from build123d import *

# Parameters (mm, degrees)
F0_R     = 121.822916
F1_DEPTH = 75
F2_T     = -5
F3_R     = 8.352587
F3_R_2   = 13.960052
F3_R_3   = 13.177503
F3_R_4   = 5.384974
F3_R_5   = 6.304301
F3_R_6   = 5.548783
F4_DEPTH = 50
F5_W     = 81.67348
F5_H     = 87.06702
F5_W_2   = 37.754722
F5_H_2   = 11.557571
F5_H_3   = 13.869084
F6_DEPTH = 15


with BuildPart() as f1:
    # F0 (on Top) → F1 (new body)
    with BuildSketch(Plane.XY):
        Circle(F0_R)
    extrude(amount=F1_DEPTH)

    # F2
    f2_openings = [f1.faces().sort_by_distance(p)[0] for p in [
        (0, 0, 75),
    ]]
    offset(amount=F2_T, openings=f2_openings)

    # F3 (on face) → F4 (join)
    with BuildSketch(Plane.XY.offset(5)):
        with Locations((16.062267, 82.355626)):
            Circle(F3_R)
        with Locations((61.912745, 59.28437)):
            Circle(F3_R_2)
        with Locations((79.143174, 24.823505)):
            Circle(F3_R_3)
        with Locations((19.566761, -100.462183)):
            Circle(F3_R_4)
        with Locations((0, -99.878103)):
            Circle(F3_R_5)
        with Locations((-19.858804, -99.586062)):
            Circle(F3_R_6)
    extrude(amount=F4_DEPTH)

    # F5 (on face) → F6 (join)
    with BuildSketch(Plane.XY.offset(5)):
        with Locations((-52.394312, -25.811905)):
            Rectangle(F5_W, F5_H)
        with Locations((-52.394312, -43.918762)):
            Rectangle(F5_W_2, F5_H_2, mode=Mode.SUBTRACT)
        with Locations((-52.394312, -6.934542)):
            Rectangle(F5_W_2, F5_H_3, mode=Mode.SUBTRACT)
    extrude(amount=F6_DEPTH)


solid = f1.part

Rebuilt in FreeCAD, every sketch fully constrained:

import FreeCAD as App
import Part
import Sketcher
from FreeCAD import Vector


def faces_at(feature, points):
    """Names of the faces that lie closest to the given points."""
    faces = feature.Shape.Faces
    near = lambda p: min(range(len(faces)), key=lambda i: faces[i].distToShape(Part.Vertex(*p))[0])
    return sorted({f"Face{near(p) + 1}" for p in points})

doc = App.newDocument("Part")
body = doc.addObject("PartDesign::Body", "Body")

# Sketch on XY plane
sketch1 = body.newObject("Sketcher::SketchObject", "Sketch")
sketch1.AttachmentSupport = (doc.getObject("XY_Plane"), [""])
sketch1.MapMode = "FlatFace"
sketch1.addGeometry(Part.Circle(Vector(0, 0, 0), Vector(0, 0, 1), 121.822916), False)
sketch1.addConstraint([
    Sketcher.Constraint("Coincident", 0, 3, -1, 1),
    Sketcher.Constraint("Diameter", 0, 243.645832),
])
pad1 = body.newObject("PartDesign::Pad", "Pad")
pad1.Profile = sketch1
pad1.Length = 75
doc.recompute()

thickness = body.newObject("PartDesign::Thickness", "Thickness")
thickness.Base = (pad1, faces_at(pad1, [(0, 0, 75)]))
thickness.Value = 5
thickness.Reversed = True
thickness.Join = "Arc"

# Sketch on XY plane
sketch2 = body.newObject("Sketcher::SketchObject", "Sketch001")
sketch2.AttachmentSupport = (doc.getObject("XY_Plane"), [""])
sketch2.MapMode = "FlatFace"
sketch2.AttachmentOffset = App.Placement(Vector(0, 0, 5), App.Rotation())
sketch2.addGeometry([
    Part.Circle(Vector(16.062267, 82.355626, 0), Vector(0, 0, 1), 8.352587),  # 0
    Part.Circle(Vector(61.912745, 59.28437, 0), Vector(0, 0, 1), 13.960052),  # 1
    Part.Circle(Vector(79.143174, 24.823505, 0), Vector(0, 0, 1), 13.177503),  # 2
    Part.Circle(Vector(19.566761, -100.462183, 0), Vector(0, 0, 1), 5.384974),  # 3
    Part.Circle(Vector(0, -99.878103, 0), Vector(0, 0, 1), 6.304301),  # 4
    Part.Circle(Vector(-19.858804, -99.586062, 0), Vector(0, 0, 1), 5.548783),  # 5
], False)
sketch2.addConstraint([
    Sketcher.Constraint("PointOnObject", 4, 3, -2),
    Sketcher.Constraint("Diameter", 0, 16.705174),
    Sketcher.Constraint("Diameter", 1, 27.920104),
    Sketcher.Constraint("Diameter", 2, 26.355006),
    Sketcher.Constraint("Diameter", 3, 10.769948),
    Sketcher.Constraint("Diameter", 4, 12.608602),
    Sketcher.Constraint("Diameter", 5, 11.097566),
    Sketcher.Constraint("DistanceY", -1, 1, 1, 3, 59.28437),
    Sketcher.Constraint("DistanceX", -1, 1, 3, 3, 19.566761),
    Sketcher.Constraint("DistanceY", 5, 3, -1, 1, 99.586062),
    Sketcher.Constraint("DistanceX", 0, 3, 1, 3, 45.850478),
    Sketcher.Constraint("DistanceX", 1, 3, 2, 3, 17.230429),
    Sketcher.Constraint("DistanceY", 2, 3, 0, 3, 57.532121),
    Sketcher.Constraint("DistanceY", 3, 3, 0, 3, 182.817809),
    Sketcher.Constraint("DistanceY", 3, 3, 4, 3, 0.58408),
    Sketcher.Constraint("DistanceY", 4, 3, 5, 3, 0.292041),
    Sketcher.Constraint("DistanceX", 5, 3, 2, 3, 99.001978),
    Sketcher.Constraint("DistanceX", -1, 1, 0, 3, 16.062267),
])
pad2 = body.newObject("PartDesign::Pad", "Pad001")
pad2.Profile = sketch2
pad2.Length = 50

# Sketch on XY plane
sketch3 = body.newObject("Sketcher::SketchObject", "Sketch002")
sketch3.AttachmentSupport = (doc.getObject("XY_Plane"), [""])
sketch3.MapMode = "FlatFace"
sketch3.AttachmentOffset = App.Placement(Vector(0, 0, 5), App.Rotation())
sketch3.addGeometry([
    Part.LineSegment(Vector(-93.231052, 17.721605, 0), Vector(-93.231052, -69.345415, 0)),  # 0
    Part.LineSegment(Vector(-93.231052, -69.345415, 0), Vector(-11.557572, -69.345415, 0)),  # 1
    Part.LineSegment(Vector(-11.557572, -69.345415, 0), Vector(-11.557572, 17.721605, 0)),  # 2
    Part.LineSegment(Vector(-11.557572, 17.721605, 0), Vector(-93.231052, 17.721605, 0)),  # 3
    Part.LineSegment(Vector(-33.516951, -49.697547, 0), Vector(-71.271673, -49.697547, 0)),  # 4
    Part.LineSegment(Vector(-71.271673, -49.697547, 0), Vector(-71.271673, -38.139977, 0)),  # 5
    Part.LineSegment(Vector(-71.271673, -38.139977, 0), Vector(-33.516951, -38.139977, 0)),  # 6
    Part.LineSegment(Vector(-33.516951, -38.139977, 0), Vector(-33.516951, -49.697547, 0)),  # 7
    Part.LineSegment(Vector(-33.516951, -13.869084, 0), Vector(-71.271673, -13.869084, 0)),  # 8
    Part.LineSegment(Vector(-71.271673, -13.869084, 0), Vector(-71.271673, 0, 0)),  # 9
    Part.LineSegment(Vector(-71.271673, 0, 0), Vector(-33.516951, 0, 0)),  # 10
    Part.LineSegment(Vector(-33.516951, 0, 0), Vector(-33.516951, -13.869084, 0)),  # 11
], False)
sketch3.addConstraint([
    Sketcher.Constraint("Coincident", 0, 2, 1, 1),
    Sketcher.Constraint("Coincident", 1, 2, 2, 1),
    Sketcher.Constraint("Coincident", 2, 2, 3, 1),
    Sketcher.Constraint("Coincident", 3, 2, 0, 1),
    Sketcher.Constraint("Coincident", 4, 2, 5, 1),
    Sketcher.Constraint("Coincident", 5, 2, 6, 1),
    Sketcher.Constraint("Coincident", 6, 2, 7, 1),
    Sketcher.Constraint("Coincident", 7, 2, 4, 1),
    Sketcher.Constraint("Coincident", 8, 2, 9, 1),
    Sketcher.Constraint("Coincident", 9, 2, 10, 1),
    Sketcher.Constraint("Coincident", 10, 2, 11, 1),
    Sketcher.Constraint("Coincident", 11, 2, 8, 1),
    Sketcher.Constraint("Vertical", 0),
    Sketcher.Constraint("Horizontal", 1),
    Sketcher.Constraint("Vertical", 2),
    Sketcher.Constraint("Horizontal", 3),
    Sketcher.Constraint("Horizontal", 4),
    Sketcher.Constraint("Vertical", 5),
    Sketcher.Constraint("Horizontal", 6),
    Sketcher.Constraint("Vertical", 7),
    Sketcher.Constraint("Horizontal", 8),
    Sketcher.Constraint("Vertical", 9),
    Sketcher.Constraint("Horizontal", 10),
    Sketcher.Constraint("Vertical", 11),
    Sketcher.Constraint("PointOnObject", 9, 2, -1),
    Sketcher.Constraint("Vertical", 5, 2, 8, 2),
    Sketcher.Constraint("Vertical", 7, 2, 10, 2),
    Sketcher.Constraint("DistanceX", 1, 1, 1, 2, 81.67348),
    Sketcher.Constraint("DistanceY", 0, 2, 0, 1, 87.06702),
    Sketcher.Constraint("DistanceY", 5, 1, 5, 2, 11.557571),
    Sketcher.Constraint("DistanceX", 4, 2, 1, 2, 59.714101),
    Sketcher.Constraint("DistanceX", 0, 2, 6, 2, 59.714101),
    Sketcher.Constraint("DistanceY", 9, 1, 9, 2, 13.869084),
    Sketcher.Constraint("DistanceX", 6, 2, -1, 1, 33.516951),
    Sketcher.Constraint("DistanceY", 0, 2, 5, 2, 31.205438),
    Sketcher.Constraint("DistanceY", 8, 2, 3, 2, 31.590689),
])
pad3 = body.newObject("PartDesign::Pad", "Pad002")
pad3.Profile = sketch3
pad3.Length = 15

doc.recompute()
